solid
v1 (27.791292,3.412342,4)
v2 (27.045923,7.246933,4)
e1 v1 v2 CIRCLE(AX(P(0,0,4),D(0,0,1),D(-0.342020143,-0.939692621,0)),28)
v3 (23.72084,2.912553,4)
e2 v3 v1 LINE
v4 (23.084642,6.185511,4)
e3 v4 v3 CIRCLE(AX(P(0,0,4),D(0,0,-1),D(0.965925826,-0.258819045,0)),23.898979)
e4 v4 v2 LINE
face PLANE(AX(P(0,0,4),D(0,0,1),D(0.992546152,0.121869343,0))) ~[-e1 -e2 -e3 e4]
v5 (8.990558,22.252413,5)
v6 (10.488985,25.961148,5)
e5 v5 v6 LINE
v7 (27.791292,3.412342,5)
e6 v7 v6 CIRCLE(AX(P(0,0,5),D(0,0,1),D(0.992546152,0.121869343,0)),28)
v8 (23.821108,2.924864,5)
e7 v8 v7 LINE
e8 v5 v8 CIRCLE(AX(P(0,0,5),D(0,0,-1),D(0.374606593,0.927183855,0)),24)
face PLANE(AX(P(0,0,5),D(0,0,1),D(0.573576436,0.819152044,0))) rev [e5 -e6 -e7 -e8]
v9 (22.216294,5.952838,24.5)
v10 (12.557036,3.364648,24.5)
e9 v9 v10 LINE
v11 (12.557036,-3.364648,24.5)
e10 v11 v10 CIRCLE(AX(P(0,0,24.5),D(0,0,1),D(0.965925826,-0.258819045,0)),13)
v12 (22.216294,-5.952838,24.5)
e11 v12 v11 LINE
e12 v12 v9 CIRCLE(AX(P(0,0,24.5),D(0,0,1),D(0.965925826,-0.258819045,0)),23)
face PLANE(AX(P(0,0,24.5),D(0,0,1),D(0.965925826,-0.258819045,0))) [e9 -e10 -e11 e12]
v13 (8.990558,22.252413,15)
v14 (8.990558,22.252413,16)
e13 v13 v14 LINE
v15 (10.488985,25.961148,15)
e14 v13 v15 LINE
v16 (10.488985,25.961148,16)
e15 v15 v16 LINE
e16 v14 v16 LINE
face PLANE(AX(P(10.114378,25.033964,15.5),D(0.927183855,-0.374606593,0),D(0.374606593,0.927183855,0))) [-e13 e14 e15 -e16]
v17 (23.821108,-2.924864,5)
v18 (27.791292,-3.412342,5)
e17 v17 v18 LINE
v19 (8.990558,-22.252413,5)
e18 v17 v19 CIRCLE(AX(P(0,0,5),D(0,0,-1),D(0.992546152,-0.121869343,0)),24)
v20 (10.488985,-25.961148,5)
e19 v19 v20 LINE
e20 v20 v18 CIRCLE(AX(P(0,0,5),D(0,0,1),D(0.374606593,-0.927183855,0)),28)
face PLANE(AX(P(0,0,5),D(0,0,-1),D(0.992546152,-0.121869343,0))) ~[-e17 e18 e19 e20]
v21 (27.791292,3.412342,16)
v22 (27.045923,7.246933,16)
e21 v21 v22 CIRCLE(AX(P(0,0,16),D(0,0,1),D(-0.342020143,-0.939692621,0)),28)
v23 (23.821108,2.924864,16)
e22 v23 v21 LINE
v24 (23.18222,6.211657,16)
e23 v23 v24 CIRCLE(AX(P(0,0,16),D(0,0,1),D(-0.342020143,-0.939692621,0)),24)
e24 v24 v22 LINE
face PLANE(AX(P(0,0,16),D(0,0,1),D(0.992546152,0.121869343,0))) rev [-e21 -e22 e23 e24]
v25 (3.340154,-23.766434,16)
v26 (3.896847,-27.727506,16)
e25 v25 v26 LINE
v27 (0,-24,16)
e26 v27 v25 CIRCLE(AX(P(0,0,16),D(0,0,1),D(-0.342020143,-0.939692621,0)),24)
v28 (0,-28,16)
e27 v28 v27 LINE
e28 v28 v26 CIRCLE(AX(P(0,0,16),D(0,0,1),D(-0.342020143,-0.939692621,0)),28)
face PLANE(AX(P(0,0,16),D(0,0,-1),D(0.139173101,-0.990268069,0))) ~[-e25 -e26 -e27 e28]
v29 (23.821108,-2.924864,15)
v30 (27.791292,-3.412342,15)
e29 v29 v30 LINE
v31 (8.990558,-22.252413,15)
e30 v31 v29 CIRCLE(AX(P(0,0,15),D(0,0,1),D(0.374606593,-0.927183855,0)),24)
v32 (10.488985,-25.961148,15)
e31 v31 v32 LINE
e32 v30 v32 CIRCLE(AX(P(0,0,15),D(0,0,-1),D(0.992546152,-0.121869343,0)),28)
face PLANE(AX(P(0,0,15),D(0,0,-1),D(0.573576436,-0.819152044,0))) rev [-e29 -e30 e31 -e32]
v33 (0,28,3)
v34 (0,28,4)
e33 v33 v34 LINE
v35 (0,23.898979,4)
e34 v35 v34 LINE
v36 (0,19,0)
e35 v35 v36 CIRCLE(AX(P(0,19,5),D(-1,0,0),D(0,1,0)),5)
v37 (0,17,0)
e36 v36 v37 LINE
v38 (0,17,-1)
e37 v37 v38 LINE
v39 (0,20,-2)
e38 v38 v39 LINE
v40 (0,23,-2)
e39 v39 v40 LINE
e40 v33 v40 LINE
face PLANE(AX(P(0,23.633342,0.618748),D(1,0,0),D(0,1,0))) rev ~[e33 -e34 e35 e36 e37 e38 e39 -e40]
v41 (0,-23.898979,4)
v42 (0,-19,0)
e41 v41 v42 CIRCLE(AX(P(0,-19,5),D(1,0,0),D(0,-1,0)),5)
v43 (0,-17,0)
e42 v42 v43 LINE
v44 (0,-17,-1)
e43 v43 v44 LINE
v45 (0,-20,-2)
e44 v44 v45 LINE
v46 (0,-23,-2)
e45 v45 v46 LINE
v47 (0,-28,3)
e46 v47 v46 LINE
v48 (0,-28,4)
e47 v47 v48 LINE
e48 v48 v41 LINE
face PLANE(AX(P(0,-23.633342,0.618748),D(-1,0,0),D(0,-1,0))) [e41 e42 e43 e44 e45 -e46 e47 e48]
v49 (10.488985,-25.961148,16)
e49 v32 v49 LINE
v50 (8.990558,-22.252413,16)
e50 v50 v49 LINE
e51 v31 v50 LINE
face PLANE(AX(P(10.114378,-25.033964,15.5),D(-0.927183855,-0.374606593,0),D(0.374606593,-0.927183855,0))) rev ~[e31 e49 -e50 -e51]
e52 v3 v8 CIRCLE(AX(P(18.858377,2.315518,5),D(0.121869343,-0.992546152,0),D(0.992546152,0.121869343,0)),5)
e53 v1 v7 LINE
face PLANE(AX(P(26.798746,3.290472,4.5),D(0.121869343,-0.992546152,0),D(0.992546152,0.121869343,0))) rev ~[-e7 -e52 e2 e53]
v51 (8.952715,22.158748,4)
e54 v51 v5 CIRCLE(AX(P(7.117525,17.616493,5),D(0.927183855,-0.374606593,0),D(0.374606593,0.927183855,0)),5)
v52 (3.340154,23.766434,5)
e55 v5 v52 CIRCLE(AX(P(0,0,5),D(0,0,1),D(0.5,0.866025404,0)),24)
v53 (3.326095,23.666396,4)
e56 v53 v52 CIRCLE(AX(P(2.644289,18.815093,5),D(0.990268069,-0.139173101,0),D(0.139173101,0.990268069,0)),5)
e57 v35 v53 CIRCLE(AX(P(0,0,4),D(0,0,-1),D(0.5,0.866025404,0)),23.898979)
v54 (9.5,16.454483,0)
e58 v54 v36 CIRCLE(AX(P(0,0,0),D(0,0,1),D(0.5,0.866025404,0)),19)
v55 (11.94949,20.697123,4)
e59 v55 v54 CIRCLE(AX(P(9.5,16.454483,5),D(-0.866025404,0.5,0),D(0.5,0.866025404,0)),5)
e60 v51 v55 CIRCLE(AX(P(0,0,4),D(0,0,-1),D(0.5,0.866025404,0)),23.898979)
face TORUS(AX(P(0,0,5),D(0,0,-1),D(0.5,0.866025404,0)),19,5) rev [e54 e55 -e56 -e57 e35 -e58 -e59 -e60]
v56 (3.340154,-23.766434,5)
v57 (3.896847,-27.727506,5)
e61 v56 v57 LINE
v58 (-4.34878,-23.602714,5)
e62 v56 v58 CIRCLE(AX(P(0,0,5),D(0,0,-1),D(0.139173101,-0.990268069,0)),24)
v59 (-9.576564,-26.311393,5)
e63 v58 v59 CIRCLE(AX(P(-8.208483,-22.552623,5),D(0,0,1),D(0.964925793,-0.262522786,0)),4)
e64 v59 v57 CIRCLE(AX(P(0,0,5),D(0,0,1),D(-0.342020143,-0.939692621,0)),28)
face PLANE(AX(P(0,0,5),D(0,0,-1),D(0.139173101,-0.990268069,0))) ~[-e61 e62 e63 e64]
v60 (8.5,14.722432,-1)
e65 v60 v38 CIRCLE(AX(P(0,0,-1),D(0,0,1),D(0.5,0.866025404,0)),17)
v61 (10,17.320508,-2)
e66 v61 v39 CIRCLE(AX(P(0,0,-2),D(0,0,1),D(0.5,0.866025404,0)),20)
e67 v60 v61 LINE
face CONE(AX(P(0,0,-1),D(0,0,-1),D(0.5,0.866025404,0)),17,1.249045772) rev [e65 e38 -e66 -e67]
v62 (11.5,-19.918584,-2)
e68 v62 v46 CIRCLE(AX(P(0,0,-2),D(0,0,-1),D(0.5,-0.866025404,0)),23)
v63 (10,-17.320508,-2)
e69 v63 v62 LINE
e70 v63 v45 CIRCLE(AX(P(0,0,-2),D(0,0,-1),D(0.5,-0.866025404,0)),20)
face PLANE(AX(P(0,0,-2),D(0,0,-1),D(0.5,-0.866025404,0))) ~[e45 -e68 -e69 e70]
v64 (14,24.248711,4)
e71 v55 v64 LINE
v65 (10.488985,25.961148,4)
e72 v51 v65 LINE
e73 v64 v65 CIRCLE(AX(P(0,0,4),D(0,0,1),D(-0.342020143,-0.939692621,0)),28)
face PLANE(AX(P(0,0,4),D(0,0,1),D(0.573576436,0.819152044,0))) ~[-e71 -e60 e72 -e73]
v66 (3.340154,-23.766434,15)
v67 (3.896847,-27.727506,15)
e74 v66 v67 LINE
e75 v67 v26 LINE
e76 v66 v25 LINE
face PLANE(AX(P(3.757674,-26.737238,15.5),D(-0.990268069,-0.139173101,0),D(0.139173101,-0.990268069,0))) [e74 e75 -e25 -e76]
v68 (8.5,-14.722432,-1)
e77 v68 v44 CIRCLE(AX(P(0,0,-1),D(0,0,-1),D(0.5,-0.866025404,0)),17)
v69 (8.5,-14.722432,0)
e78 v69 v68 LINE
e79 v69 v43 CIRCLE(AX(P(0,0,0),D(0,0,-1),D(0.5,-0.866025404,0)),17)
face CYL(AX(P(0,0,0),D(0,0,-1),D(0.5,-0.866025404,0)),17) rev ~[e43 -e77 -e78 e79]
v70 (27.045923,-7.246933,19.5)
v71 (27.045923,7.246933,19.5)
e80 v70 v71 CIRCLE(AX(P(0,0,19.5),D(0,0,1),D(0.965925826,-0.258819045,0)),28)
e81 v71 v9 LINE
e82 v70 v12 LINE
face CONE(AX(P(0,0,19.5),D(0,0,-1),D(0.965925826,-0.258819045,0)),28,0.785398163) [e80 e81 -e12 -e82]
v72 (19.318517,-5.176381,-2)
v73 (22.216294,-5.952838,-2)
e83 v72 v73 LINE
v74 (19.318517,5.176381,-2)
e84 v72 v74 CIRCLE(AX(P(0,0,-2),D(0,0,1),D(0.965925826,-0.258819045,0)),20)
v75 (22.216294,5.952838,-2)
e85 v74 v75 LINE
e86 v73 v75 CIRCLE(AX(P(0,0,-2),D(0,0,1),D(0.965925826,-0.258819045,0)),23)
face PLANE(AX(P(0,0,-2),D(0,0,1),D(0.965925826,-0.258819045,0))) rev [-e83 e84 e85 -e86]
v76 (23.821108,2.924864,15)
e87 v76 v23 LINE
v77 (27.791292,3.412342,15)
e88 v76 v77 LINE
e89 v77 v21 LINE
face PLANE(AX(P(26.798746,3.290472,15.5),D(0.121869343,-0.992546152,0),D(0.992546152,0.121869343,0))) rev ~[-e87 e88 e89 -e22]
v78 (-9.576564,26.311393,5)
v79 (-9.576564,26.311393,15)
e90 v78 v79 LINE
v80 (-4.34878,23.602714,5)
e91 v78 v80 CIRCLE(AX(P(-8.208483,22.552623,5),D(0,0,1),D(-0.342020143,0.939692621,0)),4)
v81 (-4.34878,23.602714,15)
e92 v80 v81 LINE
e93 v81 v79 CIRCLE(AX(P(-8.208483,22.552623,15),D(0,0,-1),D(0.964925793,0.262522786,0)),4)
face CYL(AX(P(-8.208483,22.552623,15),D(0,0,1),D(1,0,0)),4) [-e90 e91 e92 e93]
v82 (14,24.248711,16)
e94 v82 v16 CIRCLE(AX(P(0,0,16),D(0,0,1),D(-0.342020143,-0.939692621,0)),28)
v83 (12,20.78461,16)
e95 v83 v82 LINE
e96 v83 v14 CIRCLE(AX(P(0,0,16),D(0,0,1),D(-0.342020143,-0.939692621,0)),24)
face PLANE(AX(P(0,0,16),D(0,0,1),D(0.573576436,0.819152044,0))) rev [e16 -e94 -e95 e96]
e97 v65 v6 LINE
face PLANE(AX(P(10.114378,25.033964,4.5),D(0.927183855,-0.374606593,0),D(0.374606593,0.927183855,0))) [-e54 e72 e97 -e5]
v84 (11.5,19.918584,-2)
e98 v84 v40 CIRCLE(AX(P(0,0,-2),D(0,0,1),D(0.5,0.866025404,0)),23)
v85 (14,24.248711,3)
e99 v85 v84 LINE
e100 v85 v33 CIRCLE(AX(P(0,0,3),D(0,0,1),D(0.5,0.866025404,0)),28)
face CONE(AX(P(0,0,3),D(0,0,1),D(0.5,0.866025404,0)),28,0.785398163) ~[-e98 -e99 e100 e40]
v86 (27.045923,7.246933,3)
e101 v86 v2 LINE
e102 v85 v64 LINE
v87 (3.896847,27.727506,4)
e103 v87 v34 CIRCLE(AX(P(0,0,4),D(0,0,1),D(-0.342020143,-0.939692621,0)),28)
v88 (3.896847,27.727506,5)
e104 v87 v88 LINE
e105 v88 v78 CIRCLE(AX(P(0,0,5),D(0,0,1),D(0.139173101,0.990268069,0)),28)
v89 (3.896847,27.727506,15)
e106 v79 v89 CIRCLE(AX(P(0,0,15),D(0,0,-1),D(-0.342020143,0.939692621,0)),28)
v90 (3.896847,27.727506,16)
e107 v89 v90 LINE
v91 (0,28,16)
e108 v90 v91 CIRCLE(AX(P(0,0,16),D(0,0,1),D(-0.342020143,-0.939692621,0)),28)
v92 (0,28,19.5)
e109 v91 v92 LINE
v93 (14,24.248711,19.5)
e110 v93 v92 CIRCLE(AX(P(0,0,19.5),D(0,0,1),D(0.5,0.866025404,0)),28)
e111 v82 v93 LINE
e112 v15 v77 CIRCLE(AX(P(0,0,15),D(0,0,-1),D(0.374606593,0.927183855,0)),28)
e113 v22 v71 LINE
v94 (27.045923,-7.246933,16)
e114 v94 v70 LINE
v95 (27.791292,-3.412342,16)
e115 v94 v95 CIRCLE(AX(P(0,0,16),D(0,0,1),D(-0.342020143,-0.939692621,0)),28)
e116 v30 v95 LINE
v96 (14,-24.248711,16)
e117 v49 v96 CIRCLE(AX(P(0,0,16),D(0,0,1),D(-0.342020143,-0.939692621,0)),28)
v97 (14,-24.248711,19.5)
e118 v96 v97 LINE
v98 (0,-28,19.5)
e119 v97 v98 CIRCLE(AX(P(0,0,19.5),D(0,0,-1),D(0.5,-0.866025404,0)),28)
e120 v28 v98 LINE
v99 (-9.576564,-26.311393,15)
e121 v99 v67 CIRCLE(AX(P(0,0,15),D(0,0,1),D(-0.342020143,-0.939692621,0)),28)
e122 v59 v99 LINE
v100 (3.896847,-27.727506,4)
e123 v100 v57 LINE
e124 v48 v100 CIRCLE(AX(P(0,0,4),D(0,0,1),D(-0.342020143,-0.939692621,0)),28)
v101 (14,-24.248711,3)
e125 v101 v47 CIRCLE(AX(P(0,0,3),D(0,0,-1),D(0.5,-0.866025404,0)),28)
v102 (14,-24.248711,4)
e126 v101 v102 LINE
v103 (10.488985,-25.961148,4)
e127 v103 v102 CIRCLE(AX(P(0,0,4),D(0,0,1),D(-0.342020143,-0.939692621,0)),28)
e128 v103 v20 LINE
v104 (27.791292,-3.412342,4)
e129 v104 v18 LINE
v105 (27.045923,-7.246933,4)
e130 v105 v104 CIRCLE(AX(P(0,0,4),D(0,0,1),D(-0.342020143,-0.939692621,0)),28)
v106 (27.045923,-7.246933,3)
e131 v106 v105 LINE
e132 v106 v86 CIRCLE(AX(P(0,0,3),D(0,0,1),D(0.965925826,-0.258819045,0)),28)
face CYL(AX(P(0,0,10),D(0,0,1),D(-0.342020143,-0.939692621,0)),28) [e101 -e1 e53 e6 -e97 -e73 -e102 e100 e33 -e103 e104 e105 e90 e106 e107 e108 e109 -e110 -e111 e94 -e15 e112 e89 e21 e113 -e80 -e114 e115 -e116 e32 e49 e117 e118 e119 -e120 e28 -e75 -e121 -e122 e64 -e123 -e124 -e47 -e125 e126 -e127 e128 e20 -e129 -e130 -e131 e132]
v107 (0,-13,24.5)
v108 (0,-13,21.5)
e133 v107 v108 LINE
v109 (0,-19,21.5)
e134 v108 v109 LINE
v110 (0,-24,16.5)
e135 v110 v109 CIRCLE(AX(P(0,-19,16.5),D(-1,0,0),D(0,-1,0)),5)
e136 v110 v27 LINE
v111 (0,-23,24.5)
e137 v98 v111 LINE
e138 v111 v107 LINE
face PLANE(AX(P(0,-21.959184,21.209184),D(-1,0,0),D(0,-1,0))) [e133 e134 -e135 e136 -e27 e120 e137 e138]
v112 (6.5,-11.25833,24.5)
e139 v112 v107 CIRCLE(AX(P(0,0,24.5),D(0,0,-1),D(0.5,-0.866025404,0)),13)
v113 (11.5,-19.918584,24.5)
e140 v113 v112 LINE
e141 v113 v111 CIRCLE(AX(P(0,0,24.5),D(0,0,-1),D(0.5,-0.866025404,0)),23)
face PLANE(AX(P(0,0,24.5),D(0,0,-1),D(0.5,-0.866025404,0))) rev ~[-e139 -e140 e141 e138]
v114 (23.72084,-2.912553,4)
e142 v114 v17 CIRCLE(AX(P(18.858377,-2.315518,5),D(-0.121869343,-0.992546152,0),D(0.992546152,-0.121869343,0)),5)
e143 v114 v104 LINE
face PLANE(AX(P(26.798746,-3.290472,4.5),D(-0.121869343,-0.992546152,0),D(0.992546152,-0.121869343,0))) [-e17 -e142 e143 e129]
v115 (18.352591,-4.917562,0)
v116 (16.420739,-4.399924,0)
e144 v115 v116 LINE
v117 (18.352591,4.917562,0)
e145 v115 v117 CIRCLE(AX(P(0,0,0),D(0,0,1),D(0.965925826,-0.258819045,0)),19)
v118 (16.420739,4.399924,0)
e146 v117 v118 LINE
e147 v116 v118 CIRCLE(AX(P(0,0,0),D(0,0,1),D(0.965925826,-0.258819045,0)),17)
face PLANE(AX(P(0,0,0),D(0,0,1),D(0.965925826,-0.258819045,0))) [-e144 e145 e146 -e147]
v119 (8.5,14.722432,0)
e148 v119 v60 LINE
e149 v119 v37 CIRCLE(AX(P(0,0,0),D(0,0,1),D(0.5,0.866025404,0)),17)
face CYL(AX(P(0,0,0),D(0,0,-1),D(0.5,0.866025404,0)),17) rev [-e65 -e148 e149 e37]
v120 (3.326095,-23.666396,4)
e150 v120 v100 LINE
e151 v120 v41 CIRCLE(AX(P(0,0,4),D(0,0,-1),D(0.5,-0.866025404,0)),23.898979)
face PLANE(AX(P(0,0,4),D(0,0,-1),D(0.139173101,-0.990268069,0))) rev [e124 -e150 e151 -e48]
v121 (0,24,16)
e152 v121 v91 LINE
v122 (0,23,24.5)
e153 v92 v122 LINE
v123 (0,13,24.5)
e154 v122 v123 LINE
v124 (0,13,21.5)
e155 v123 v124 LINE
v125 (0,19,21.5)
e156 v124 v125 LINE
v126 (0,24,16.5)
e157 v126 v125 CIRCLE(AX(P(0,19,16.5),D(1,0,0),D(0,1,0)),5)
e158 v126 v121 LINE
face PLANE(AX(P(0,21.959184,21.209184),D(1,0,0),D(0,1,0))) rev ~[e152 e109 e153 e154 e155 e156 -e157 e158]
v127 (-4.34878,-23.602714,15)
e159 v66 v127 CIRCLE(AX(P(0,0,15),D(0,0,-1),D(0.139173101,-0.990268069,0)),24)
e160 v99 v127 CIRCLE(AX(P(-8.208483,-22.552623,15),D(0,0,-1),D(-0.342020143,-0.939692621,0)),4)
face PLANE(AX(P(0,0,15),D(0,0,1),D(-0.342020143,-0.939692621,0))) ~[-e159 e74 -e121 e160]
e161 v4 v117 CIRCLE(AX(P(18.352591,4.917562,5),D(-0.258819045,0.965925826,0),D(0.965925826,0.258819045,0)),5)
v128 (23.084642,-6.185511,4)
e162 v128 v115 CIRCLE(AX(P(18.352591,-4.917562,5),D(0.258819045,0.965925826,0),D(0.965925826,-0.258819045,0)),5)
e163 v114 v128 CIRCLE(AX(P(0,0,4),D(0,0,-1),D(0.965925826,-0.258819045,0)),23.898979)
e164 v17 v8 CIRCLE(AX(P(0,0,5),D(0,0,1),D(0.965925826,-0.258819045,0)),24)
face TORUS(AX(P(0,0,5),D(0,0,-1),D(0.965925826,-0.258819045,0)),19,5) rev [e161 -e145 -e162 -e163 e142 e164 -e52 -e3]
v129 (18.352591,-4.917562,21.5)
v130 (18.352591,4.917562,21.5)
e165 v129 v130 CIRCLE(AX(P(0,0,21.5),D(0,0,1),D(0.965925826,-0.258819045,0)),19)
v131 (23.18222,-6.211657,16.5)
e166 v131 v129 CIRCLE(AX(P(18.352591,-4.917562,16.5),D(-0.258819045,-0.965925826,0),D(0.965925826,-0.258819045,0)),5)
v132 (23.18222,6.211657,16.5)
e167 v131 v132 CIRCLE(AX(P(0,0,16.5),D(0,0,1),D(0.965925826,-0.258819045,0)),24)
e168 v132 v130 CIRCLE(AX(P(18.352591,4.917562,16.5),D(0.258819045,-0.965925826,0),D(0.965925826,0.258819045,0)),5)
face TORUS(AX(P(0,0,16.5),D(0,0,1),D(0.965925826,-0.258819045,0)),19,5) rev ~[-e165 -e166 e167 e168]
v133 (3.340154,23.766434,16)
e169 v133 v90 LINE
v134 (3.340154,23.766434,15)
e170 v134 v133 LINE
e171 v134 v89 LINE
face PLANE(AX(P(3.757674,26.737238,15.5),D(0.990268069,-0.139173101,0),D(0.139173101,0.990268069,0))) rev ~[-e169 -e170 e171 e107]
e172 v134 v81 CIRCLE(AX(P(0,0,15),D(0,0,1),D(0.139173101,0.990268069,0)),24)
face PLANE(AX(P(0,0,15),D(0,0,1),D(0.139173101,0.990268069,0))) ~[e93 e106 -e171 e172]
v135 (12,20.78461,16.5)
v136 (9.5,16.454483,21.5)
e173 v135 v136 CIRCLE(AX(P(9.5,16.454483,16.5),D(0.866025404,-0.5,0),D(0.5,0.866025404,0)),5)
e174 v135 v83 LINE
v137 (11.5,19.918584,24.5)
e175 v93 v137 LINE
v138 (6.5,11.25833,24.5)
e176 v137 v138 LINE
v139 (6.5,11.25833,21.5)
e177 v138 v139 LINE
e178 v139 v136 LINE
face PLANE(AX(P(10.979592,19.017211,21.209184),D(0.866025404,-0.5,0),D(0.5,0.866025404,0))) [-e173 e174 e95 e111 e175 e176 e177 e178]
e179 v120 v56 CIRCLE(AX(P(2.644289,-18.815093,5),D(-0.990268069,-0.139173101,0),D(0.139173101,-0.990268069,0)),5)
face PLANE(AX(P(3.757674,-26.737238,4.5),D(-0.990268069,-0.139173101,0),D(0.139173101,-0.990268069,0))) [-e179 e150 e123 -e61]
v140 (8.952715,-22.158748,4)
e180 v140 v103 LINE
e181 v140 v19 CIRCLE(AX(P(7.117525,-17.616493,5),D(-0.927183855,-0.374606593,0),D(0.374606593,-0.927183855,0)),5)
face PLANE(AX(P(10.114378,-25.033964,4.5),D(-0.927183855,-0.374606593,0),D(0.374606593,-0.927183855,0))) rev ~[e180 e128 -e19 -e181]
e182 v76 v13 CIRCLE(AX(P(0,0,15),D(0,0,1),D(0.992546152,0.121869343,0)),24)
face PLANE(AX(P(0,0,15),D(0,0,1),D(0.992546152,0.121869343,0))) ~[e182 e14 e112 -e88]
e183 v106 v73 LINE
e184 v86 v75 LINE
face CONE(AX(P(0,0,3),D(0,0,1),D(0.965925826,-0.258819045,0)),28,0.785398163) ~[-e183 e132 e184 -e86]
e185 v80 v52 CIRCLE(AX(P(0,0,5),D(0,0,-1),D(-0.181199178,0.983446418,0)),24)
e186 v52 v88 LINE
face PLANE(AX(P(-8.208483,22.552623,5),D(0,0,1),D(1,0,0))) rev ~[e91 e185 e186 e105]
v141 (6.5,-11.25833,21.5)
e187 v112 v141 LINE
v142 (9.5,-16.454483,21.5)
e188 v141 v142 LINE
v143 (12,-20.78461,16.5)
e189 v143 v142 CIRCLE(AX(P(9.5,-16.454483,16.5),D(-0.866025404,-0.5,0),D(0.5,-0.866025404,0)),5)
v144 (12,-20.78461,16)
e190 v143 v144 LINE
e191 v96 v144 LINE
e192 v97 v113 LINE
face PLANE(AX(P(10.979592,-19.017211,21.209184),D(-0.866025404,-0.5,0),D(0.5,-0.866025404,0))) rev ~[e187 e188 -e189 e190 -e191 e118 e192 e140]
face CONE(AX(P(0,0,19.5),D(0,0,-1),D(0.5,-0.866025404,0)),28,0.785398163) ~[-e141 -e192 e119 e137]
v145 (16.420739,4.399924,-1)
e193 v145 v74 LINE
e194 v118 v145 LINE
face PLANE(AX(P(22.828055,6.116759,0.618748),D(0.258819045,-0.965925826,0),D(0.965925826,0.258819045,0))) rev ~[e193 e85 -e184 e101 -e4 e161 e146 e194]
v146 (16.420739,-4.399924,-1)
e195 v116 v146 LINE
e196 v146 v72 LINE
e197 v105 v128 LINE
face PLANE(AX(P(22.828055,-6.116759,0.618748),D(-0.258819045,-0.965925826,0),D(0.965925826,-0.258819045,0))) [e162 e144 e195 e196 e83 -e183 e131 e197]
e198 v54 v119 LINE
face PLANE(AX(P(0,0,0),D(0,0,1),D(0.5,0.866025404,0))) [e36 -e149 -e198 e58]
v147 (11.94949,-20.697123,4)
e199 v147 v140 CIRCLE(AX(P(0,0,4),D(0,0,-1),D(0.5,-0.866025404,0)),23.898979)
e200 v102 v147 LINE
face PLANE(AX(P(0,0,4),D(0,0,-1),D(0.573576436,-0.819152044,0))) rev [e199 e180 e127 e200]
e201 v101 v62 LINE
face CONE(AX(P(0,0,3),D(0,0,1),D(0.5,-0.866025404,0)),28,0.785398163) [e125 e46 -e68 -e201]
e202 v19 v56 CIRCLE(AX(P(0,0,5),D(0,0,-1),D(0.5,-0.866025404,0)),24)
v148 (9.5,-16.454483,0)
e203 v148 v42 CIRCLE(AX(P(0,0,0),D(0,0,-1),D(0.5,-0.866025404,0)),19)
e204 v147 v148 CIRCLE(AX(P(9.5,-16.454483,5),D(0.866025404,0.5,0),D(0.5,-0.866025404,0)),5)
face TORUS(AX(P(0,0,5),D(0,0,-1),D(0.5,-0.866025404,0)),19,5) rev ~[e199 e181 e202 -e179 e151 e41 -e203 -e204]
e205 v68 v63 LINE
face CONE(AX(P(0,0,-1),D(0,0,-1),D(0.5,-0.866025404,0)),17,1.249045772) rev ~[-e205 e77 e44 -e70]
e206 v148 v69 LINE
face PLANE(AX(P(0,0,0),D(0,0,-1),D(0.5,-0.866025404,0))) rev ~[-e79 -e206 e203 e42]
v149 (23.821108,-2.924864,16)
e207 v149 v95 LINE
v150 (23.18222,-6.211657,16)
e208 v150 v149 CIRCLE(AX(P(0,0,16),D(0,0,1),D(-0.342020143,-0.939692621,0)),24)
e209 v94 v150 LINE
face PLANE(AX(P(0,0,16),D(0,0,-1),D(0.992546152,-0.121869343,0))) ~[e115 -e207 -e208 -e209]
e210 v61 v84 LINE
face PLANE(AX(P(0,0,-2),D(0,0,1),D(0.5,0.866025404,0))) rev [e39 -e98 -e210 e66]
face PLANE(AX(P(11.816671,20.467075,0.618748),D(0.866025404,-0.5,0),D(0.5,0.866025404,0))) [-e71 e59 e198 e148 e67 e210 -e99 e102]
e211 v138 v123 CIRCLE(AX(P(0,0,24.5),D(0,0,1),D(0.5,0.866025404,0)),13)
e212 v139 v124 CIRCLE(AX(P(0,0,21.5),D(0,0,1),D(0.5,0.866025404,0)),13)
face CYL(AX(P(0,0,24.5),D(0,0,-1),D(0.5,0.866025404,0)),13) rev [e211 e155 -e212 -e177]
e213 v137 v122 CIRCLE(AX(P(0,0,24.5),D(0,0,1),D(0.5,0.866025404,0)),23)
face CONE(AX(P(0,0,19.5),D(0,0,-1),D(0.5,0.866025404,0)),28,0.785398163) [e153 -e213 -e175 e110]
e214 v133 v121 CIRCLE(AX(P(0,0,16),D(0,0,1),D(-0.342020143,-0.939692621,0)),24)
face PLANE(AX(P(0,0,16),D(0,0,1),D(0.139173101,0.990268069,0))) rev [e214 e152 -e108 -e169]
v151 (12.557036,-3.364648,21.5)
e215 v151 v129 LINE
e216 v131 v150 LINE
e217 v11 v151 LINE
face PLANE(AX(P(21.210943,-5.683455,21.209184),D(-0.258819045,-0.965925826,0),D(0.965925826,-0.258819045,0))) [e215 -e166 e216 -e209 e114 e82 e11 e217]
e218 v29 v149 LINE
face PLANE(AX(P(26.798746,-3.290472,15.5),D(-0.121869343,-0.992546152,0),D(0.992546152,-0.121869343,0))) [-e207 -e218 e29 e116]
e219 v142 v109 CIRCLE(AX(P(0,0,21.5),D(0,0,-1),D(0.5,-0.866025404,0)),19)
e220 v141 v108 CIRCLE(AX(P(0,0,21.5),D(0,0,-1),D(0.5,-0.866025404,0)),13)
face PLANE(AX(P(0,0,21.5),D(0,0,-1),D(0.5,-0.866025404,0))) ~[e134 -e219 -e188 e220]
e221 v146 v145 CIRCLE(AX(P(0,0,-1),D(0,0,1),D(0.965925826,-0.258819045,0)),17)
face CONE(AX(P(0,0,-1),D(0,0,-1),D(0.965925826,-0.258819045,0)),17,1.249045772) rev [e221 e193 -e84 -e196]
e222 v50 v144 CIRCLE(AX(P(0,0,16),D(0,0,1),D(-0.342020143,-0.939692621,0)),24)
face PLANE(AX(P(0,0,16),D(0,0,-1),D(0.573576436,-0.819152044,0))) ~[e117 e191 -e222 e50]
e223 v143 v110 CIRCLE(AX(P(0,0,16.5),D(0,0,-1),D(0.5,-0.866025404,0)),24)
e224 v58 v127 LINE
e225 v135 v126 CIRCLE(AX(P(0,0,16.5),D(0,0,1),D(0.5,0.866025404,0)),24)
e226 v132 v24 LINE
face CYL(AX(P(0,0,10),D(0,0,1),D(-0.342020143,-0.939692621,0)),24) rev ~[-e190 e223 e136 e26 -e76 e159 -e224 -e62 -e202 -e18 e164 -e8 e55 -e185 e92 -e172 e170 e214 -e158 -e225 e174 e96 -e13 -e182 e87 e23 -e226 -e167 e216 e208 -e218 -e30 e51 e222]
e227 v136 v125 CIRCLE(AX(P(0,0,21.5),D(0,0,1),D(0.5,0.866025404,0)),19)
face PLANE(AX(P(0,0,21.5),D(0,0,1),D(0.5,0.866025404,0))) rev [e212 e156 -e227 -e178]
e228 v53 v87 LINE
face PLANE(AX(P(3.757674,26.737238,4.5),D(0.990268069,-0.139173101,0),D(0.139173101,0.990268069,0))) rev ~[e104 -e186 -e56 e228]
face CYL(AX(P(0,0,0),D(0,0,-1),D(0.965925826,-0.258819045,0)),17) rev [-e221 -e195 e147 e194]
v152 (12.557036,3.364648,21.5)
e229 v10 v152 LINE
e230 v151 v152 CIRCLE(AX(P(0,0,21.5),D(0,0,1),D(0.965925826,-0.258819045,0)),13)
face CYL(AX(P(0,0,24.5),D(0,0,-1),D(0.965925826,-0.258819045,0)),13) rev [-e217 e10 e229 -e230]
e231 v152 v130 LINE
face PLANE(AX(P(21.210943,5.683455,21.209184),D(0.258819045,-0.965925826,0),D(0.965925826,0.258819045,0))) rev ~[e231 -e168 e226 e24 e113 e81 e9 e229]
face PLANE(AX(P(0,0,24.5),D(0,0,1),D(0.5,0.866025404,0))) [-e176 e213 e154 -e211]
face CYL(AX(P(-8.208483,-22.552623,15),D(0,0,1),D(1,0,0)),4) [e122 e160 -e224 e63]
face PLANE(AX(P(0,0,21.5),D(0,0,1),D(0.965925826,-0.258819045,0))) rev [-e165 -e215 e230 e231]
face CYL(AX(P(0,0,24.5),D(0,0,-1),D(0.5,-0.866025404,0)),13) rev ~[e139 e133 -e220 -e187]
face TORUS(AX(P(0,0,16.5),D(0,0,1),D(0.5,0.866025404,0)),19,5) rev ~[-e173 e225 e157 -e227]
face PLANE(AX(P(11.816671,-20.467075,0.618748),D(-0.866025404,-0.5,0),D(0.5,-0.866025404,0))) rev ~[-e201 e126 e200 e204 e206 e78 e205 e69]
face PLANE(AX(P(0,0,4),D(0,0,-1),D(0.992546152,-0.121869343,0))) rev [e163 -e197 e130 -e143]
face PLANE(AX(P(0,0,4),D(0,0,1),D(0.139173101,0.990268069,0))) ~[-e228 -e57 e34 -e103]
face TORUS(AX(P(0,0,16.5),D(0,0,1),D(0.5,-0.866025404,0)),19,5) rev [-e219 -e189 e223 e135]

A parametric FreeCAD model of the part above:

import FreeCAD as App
import Part
import Sketcher


def edges_at(feature, points):
    """Names of the edges that pass closest to the given points."""
    edges = feature.Shape.Edges
    near = lambda p: min(range(len(edges)), key=lambda i: edges[i].distToShape(Part.Vertex(*p))[0])
    return sorted({f"Edge{near(p) + 1}" for p in points})

doc = App.newDocument("Part")
body = doc.addObject("PartDesign::Body", "Body")

# Sketch on an angled plane
sketch1 = body.newObject("Sketcher::SketchObject", "Sketch")
sketch1.Placement = App.Placement(App.Vector(0, 0, 0), App.Rotation(App.Vector(-0.342020143, -0.939692621, 0), App.Vector(0, 0, 1), App.Vector(-0.939692621, 0.342020143, 0), "ZXY"))
sketch1.addGeometry([
    Part.LineSegment(App.Vector(24, 15, 0), App.Vector(24, 5, 0)),
    Part.LineSegment(App.Vector(24, 5, 0), App.Vector(28, 5, 0)),
    Part.LineSegment(App.Vector(28, 5, 0), App.Vector(28, 15, 0)),
    Part.LineSegment(App.Vector(28, 15, 0), App.Vector(24, 15, 0)),
], False)
sketch1.addConstraint([
    Sketcher.Constraint("Coincident", 0, 2, 1, 1),
    Sketcher.Constraint("Coincident", 1, 2, 2, 1),
    Sketcher.Constraint("Coincident", 2, 2, 3, 1),
    Sketcher.Constraint("Coincident", 3, 2, 0, 1),
    Sketcher.Constraint("Vertical", 0),
    Sketcher.Constraint("Horizontal", 1),
    Sketcher.Constraint("Vertical", 2),
    Sketcher.Constraint("Horizontal", 3),
    Sketcher.Constraint("DistanceX", 1, 1, 1, 2, 4.0),
    Sketcher.Constraint("DistanceY", 0, 2, 0, 1, 10.0),
    Sketcher.Constraint("DistanceX", -1, 1, 0, 2, 24.0),
    Sketcher.Constraint("DistanceY", -1, 1, 0, 2, 5.0),
])
revolution = body.newObject("PartDesign::Revolution", "Revolution")
revolution.Profile = sketch1
revolution.ReferenceAxis = (sketch1, ["V_Axis"])
revolution.Angle = 220

# Sketch on an angled plane
sketch2 = body.newObject("Sketcher::SketchObject", "Sketch001")
sketch2.Placement = App.Placement(App.Vector(0, 0, 0), App.Rotation(App.Vector(0.5, -0.866025404, 0), App.Vector(0, 0, 1), App.Vector(-0.866025404, -0.5, 0), "ZXY"))
sketch2.addGeometry([
    Part.LineSegment(App.Vector(24, 21.5, 0), App.Vector(24, 15, 0)),  # 0
    Part.LineSegment(App.Vector(24, 15, 0), App.Vector(28, 15, 0)),  # 1
    Part.LineSegment(App.Vector(28, 15, 0), App.Vector(28, 24.5, 0)),  # 2
    Part.LineSegment(App.Vector(28, 24.5, 0), App.Vector(13, 24.5, 0)),  # 3
    Part.LineSegment(App.Vector(13, 24.5, 0), App.Vector(13, 21.5, 0)),  # 4
    Part.LineSegment(App.Vector(13, 21.5, 0), App.Vector(24, 21.5, 0)),  # 5
    Part.LineSegment(App.Vector(28, 5, 0), App.Vector(24, 5, 0)),  # 6
    Part.LineSegment(App.Vector(24, 5, 0), App.Vector(24, 0, 0)),  # 7
    Part.LineSegment(App.Vector(24, 0, 0), App.Vector(17, 0, 0)),  # 8
    Part.LineSegment(App.Vector(17, 0, 0), App.Vector(17, -1, 0)),  # 9
    Part.LineSegment(App.Vector(17, -1, 0), App.Vector(20, -2, 0)),  # 10
    Part.LineSegment(App.Vector(20, -2, 0), App.Vector(28, -2, 0)),  # 11
    Part.LineSegment(App.Vector(28, -2, 0), App.Vector(28, 5, 0)),  # 12
], False)
sketch2.addConstraint([
    Sketcher.Constraint("Coincident", 0, 2, 1, 1),
    Sketcher.Constraint("Coincident", 1, 2, 2, 1),
    Sketcher.Constraint("Coincident", 2, 2, 3, 1),
    Sketcher.Constraint("Coincident", 3, 2, 4, 1),
    Sketcher.Constraint("Coincident", 4, 2, 5, 1),
    Sketcher.Constraint("Coincident", 5, 2, 0, 1),
    Sketcher.Constraint("Coincident", 6, 2, 7, 1),
    Sketcher.Constraint("Coincident", 7, 2, 8, 1),
    Sketcher.Constraint("Coincident", 8, 2, 9, 1),
    Sketcher.Constraint("Coincident", 9, 2, 10, 1),
    Sketcher.Constraint("Coincident", 10, 2, 11, 1),
    Sketcher.Constraint("Coincident", 11, 2, 12, 1),
    Sketcher.Constraint("Coincident", 12, 2, 6, 1),
    Sketcher.Constraint("Vertical", 0),
    Sketcher.Constraint("Horizontal", 1),
    Sketcher.Constraint("Vertical", 2),
    Sketcher.Constraint("Horizontal", 3),
    Sketcher.Constraint("Vertical", 4),
    Sketcher.Constraint("Horizontal", 5),
    Sketcher.Constraint("Horizontal", 6),
    Sketcher.Constraint("Vertical", 7),
    Sketcher.Constraint("Horizontal", 8),
    Sketcher.Constraint("Vertical", 9),
    Sketcher.Constraint("Horizontal", 11),
    Sketcher.Constraint("Vertical", 12),
    Sketcher.Constraint("PointOnObject", 7, 2, -1),
    Sketcher.Constraint("Vertical", 5, 2, 6, 2),
    Sketcher.Constraint("Vertical", 2, 2, 11, 2),
    Sketcher.Constraint("Equal", 8, 12),
    Sketcher.Constraint("DistanceX", 1, 1, 1, 2, 4.0),
    Sketcher.Constraint("DistanceX", 3, 2, 3, 1, 15.0),
    Sketcher.Constraint("DistanceX", 8, 2, 8, 1, 7.0),
    Sketcher.Constraint("DistanceX", 11, 1, 11, 2, 8.0),
    Sketcher.Constraint("DistanceY", 4, 2, 4, 1, 3.0),
    Sketcher.Constraint("DistanceY", 7, 2, 7, 1, 5.0),
    Sketcher.Constraint("DistanceY", 9, 2, 9, 1, 1.0),
    Sketcher.Constraint("DistanceY", 0, 2, 0, 1, 6.5),
    Sketcher.Constraint("DistanceX", -1, 1, 0, 2, 24.0),
    Sketcher.Constraint("DistanceY", -1, 1, 0, 2, 15.0),
])
revolution2 = body.newObject("PartDesign::Revolution", "Revolution001")
revolution2.Profile = sketch2
revolution2.ReferenceAxis = (sketch2, ["V_Axis"])
revolution2.Angle = 30
revolution2.Reversed = True

# Sketch on an angled plane
sketch3 = body.newObject("Sketcher::SketchObject", "Sketch002")
sketch3.Placement = App.Placement(App.Vector(0, 0, 0), App.Rotation(App.Vector(0.5, 0.866025404, 0), App.Vector(0, 0, 1), App.Vector(0.866025404, -0.5, 0), "ZXY"))
sketch3.addGeometry([
    Part.LineSegment(App.Vector(24, 21.5, 0), App.Vector(24, 15, 0)),  # 0
    Part.LineSegment(App.Vector(24, 15, 0), App.Vector(28, 15, 0)),  # 1
    Part.LineSegment(App.Vector(28, 15, 0), App.Vector(28, 24.5, 0)),  # 2
    Part.LineSegment(App.Vector(28, 24.5, 0), App.Vector(13, 24.5, 0)),  # 3
    Part.LineSegment(App.Vector(13, 24.5, 0), App.Vector(13, 21.5, 0)),  # 4
    Part.LineSegment(App.Vector(13, 21.5, 0), App.Vector(24, 21.5, 0)),  # 5
    Part.LineSegment(App.Vector(28, 5, 0), App.Vector(24, 5, 0)),  # 6
    Part.LineSegment(App.Vector(24, 5, 0), App.Vector(24, 0, 0)),  # 7
    Part.LineSegment(App.Vector(24, 0, 0), App.Vector(17, 0, 0)),  # 8
    Part.LineSegment(App.Vector(17, 0, 0), App.Vector(17, -1, 0)),  # 9
    Part.LineSegment(App.Vector(17, -1, 0), App.Vector(20, -2, 0)),  # 10
    Part.LineSegment(App.Vector(20, -2, 0), App.Vector(28, -2, 0)),  # 11
    Part.LineSegment(App.Vector(28, -2, 0), App.Vector(28, 5, 0)),  # 12
], False)
sketch3.addConstraint([
    Sketcher.Constraint("Coincident", 0, 2, 1, 1),
    Sketcher.Constraint("Coincident", 1, 2, 2, 1),
    Sketcher.Constraint("Coincident", 2, 2, 3, 1),
    Sketcher.Constraint("Coincident", 3, 2, 4, 1),
    Sketcher.Constraint("Coincident", 4, 2, 5, 1),
    Sketcher.Constraint("Coincident", 5, 2, 0, 1),
    Sketcher.Constraint("Coincident", 6, 2, 7, 1),
    Sketcher.Constraint("Coincident", 7, 2, 8, 1),
    Sketcher.Constraint("Coincident", 8, 2, 9, 1),
    Sketcher.Constraint("Coincident", 9, 2, 10, 1),
    Sketcher.Constraint("Coincident", 10, 2, 11, 1),
    Sketcher.Constraint("Coincident", 11, 2, 12, 1),
    Sketcher.Constraint("Coincident", 12, 2, 6, 1),
    Sketcher.Constraint("Vertical", 0),
    Sketcher.Constraint("Horizontal", 1),
    Sketcher.Constraint("Vertical", 2),
    Sketcher.Constraint("Horizontal", 3),
    Sketcher.Constraint("Vertical", 4),
    Sketcher.Constraint("Horizontal", 5),
    Sketcher.Constraint("Horizontal", 6),
    Sketcher.Constraint("Vertical", 7),
    Sketcher.Constraint("Horizontal", 8),
    Sketcher.Constraint("Vertical", 9),
    Sketcher.Constraint("Horizontal", 11),
    Sketcher.Constraint("Vertical", 12),
    Sketcher.Constraint("PointOnObject", 7, 2, -1),
    Sketcher.Constraint("Vertical", 5, 2, 6, 2),
    Sketcher.Constraint("Vertical", 2, 2, 11, 2),
    Sketcher.Constraint("Equal", 8, 12),
    Sketcher.Constraint("DistanceX", 1, 1, 1, 2, 4.0),
    Sketcher.Constraint("DistanceX", 3, 2, 3, 1, 15.0),
    Sketcher.Constraint("DistanceX", 8, 2, 8, 1, 7.0),
    Sketcher.Constraint("DistanceX", 11, 1, 11, 2, 8.0),
    Sketcher.Constraint("DistanceY", 4, 2, 4, 1, 3.0),
    Sketcher.Constraint("DistanceY", 7, 2, 7, 1, 5.0),
    Sketcher.Constraint("DistanceY", 9, 2, 9, 1, 1.0),
    Sketcher.Constraint("DistanceY", 0, 2, 0, 1, 6.5),
    Sketcher.Constraint("DistanceX", -1, 1, 0, 2, 24.0),
    Sketcher.Constraint("DistanceY", -1, 1, 0, 2, 15.0),
])
revolution3 = body.newObject("PartDesign::Revolution", "Revolution002")
revolution3.Profile = sketch3
revolution3.ReferenceAxis = (sketch3, ["V_Axis"])
revolution3.Angle = 30

# Sketch on an angled plane
sketch4 = body.newObject("Sketcher::SketchObject", "Sketch003")
sketch4.Placement = App.Placement(App.Vector(0, 0, 0), App.Rotation(App.Vector(0.965925826, -0.258819045, 0), App.Vector(0, 0, 0.999999999), App.Vector(-0.258819045, -0.965925826, 0), "ZXY"))
sketch4.addGeometry([
    Part.LineSegment(App.Vector(24, 21.5, 0), App.Vector(24, 15, 0)),  # 0
    Part.LineSegment(App.Vector(24, 15, 0), App.Vector(28, 15, 0)),  # 1
    Part.LineSegment(App.Vector(28, 15, 0), App.Vector(28, 24.5, 0)),  # 2
    Part.LineSegment(App.Vector(28, 24.5, 0), App.Vector(13, 24.5, 0)),  # 3
    Part.LineSegment(App.Vector(13, 24.5, 0), App.Vector(13, 21.5, 0)),  # 4
    Part.LineSegment(App.Vector(13, 21.5, 0), App.Vector(24, 21.5, 0)),  # 5
    Part.LineSegment(App.Vector(28, 5, 0), App.Vector(24, 5, 0)),  # 6
    Part.LineSegment(App.Vector(24, 5, 0), App.Vector(24, 0, 0)),  # 7
    Part.LineSegment(App.Vector(24, 0, 0), App.Vector(17, 0, 0)),  # 8
    Part.LineSegment(App.Vector(17, 0, 0), App.Vector(17, -1, 0)),  # 9
    Part.LineSegment(App.Vector(17, -1, 0), App.Vector(20, -2, 0)),  # 10
    Part.LineSegment(App.Vector(20, -2, 0), App.Vector(28, -2, 0)),  # 11
    Part.LineSegment(App.Vector(28, -2, 0), App.Vector(28, 5, 0)),  # 12
], False)
sketch4.addConstraint([
    Sketcher.Constraint("Coincident", 0, 2, 1, 1),
    Sketcher.Constraint("Coincident", 1, 2, 2, 1),
    Sketcher.Constraint("Coincident", 2, 2, 3, 1),
    Sketcher.Constraint("Coincident", 3, 2, 4, 1),
    Sketcher.Constraint("Coincident", 4, 2, 5, 1),
    Sketcher.Constraint("Coincident", 5, 2, 0, 1),
    Sketcher.Constraint("Coincident", 6, 2, 7, 1),
    Sketcher.Constraint("Coincident", 7, 2, 8, 1),
    Sketcher.Constraint("Coincident", 8, 2, 9, 1),
    Sketcher.Constraint("Coincident", 9, 2, 10, 1),
    Sketcher.Constraint("Coincident", 10, 2, 11, 1),
    Sketcher.Constraint("Coincident", 11, 2, 12, 1),
    Sketcher.Constraint("Coincident", 12, 2, 6, 1),
    Sketcher.Constraint("Vertical", 0),
    Sketcher.Constraint("Horizontal", 1),
    Sketcher.Constraint("Vertical", 2),
    Sketcher.Constraint("Horizontal", 3),
    Sketcher.Constraint("Vertical", 4),
    Sketcher.Constraint("Horizontal", 5),
    Sketcher.Constraint("Horizontal", 6),
    Sketcher.Constraint("Vertical", 7),
    Sketcher.Constraint("Horizontal", 8),
    Sketcher.Constraint("Vertical", 9),
    Sketcher.Constraint("Horizontal", 11),
    Sketcher.Constraint("Vertical", 12),
    Sketcher.Constraint("PointOnObject", 7, 2, -1),
    Sketcher.Constraint("Vertical", 5, 2, 6, 2),
    Sketcher.Constraint("Vertical", 2, 2, 11, 2),
    Sketcher.Constraint("Equal", 8, 12),
    Sketcher.Constraint("DistanceX", 1, 1, 1, 2, 4.0),
    Sketcher.Constraint("DistanceX", 3, 2, 3, 1, 15.0),
    Sketcher.Constraint("DistanceX", 8, 2, 8, 1, 7.0),
    Sketcher.Constraint("DistanceX", 11, 1, 11, 2, 8.0),
    Sketcher.Constraint("DistanceY", 4, 2, 4, 1, 3.0),
    Sketcher.Constraint("DistanceY", 7, 2, 7, 1, 5.0),
    Sketcher.Constraint("DistanceY", 9, 2, 9, 1, 1.0),
    Sketcher.Constraint("DistanceY", 0, 2, 0, 1, 6.5),
    Sketcher.Constraint("DistanceX", -1, 1, 0, 2, 24.0),
    Sketcher.Constraint("DistanceY", -1, 1, 0, 2, 15.0),
])
revolution4 = body.newObject("PartDesign::Revolution", "Revolution003")
revolution4.Profile = sketch4
revolution4.ReferenceAxis = (sketch4, ["V_Axis"])
revolution4.Angle = 30

# Sketch on XY plane
sketch5 = body.newObject("Sketcher::SketchObject", "Sketch004")
sketch5.AttachmentSupport = (doc.getObject("XY_Plane"), [""])
sketch5.MapMode = "FlatFace"
sketch5.AttachmentOffset = App.Placement(App.Vector(0, 0, 15), App.Rotation())
sketch5.addGeometry([
    Part.Circle(App.Vector(-8.2, 22.6, 0), App.Vector(0, 0, 1), 4),
    Part.Circle(App.Vector(-8.2, -22.6, 0), App.Vector(0, 0, 1), 4),
], False)
sketch5.addConstraint([
    Sketcher.Constraint("Equal", 0, 1),
    Sketcher.Constraint("Symmetric", 0, 3, 1, 3, -1),
    Sketcher.Constraint("Diameter", 0, 8.0),
    Sketcher.Constraint("DistanceX", 0, 3, -1, 1, 8.208483),
    Sketcher.Constraint("DistanceY", -1, 1, 0, 3, 22.552623),
])
pad1 = body.newObject("PartDesign::Pad", "Pad")
pad1.Profile = sketch5
pad1.Length = 10
pad1.Reversed = True
doc.recompute()

fillet = body.newObject("PartDesign::Fillet", "Fillet")
fillet.Base = (pad1, edges_at(pad1, [
    (24, 0, 21.5),
    (6.212, 23.182, 21.5),
    (6.212, -23.182, 21.5),
    (6.212, -23.182, 0),
    (6.212, 23.182, 0),
    (24, 0, 0),
]))
fillet.Radius = 5
doc.recompute()

chamfer = body.newObject("PartDesign::Chamfer", "Chamfer")
chamfer.Base = (fillet, edges_at(fillet, [
    (7.247, 27.046, 24.5),
    (28, 0, 24.5),
    (7.247, -27.046, 24.5),
    (7.247, -27.046, -2),
    (7.247, 27.046, -2),
    (28, 0, -2),
]))
chamfer.Size = 5

# Sketch on an angled plane
sketch6 = body.newObject("Sketcher::SketchObject", "Sketch005")
sketch6.Placement = App.Placement(App.Vector(0, 0, 0), App.Rotation(App.Vector(0.992546152, -0.121869343, 0), App.Vector(0, 0, 1.000000001), App.Vector(-0.121869343, -0.992546152, 0), "ZXY"))
sketch6.addGeometry([
    Part.LineSegment(App.Vector(22, 16, 0), App.Vector(22, 15, 0)),  # 0
    Part.LineSegment(App.Vector(22, 15, 0), App.Vector(32, 15, 0)),  # 1
    Part.LineSegment(App.Vector(32, 15, 0), App.Vector(32, 16, 0)),  # 2
    Part.LineSegment(App.Vector(32, 16, 0), App.Vector(22, 16, 0)),  # 3
    Part.LineSegment(App.Vector(22, 5, 0), App.Vector(22, 4, 0)),  # 4
    Part.LineSegment(App.Vector(22, 4, 0), App.Vector(32, 4, 0)),  # 5
    Part.LineSegment(App.Vector(32, 4, 0), App.Vector(32, 5, 0)),  # 6
    Part.LineSegment(App.Vector(32, 5, 0), App.Vector(22, 5, 0)),  # 7
], False)
sketch6.addConstraint([
    Sketcher.Constraint("Coincident", 0, 2, 1, 1),
    Sketcher.Constraint("Coincident", 1, 2, 2, 1),
    Sketcher.Constraint("Coincident", 2, 2, 3, 1),
    Sketcher.Constraint("Coincident", 3, 2, 0, 1),
    Sketcher.Constraint("Coincident", 4, 2, 5, 1),
    Sketcher.Constraint("Coincident", 5, 2, 6, 1),
    Sketcher.Constraint("Coincident", 6, 2, 7, 1),
    Sketcher.Constraint("Coincident", 7, 2, 4, 1),
    Sketcher.Constraint("Vertical", 0),
    Sketcher.Constraint("Horizontal", 1),
    Sketcher.Constraint("Vertical", 2),
    Sketcher.Constraint("Horizontal", 3),
    Sketcher.Constraint("Vertical", 4),
    Sketcher.Constraint("Horizontal", 5),
    Sketcher.Constraint("Vertical", 6),
    Sketcher.Constraint("Horizontal", 7),
    Sketcher.Constraint("Vertical", 3, 2, 4, 2),
    Sketcher.Constraint("Vertical", 2, 2, 5, 2),
    Sketcher.Constraint("Equal", 2, 4),
    Sketcher.Constraint("DistanceX", 1, 1, 1, 2, 10.0),
    Sketcher.Constraint("DistanceY", 0, 2, 0, 1, 1.0),
    Sketcher.Constraint("DistanceX", -1, 1, 0, 2, 22.0),
    Sketcher.Constraint("DistanceY", -1, 1, 0, 2, 15.0),
    Sketcher.Constraint("DistanceY", -1, 1, 4, 2, 4.0),
])
groove = body.newObject("PartDesign::Groove", "Groove")
groove.Profile = sketch6
groove.ReferenceAxis = (sketch6, ["V_Axis"])
groove.Angle = 13
groove.Reversed = True

# Sketch on an angled plane
sketch7 = body.newObject("Sketcher::SketchObject", "Sketch006")
sketch7.Placement = App.Placement(App.Vector(0, 0, 0), App.Rotation(App.Vector(0.992546152, 0.121869343, 0), App.Vector(0, 0, 1.000000001), App.Vector(0.121869343, -0.992546152, 0), "ZXY"))
sketch7.addGeometry([
    Part.LineSegment(App.Vector(22, 16, 0), App.Vector(22, 15, 0)),  # 0
    Part.LineSegment(App.Vector(22, 15, 0), App.Vector(32, 15, 0)),  # 1
    Part.LineSegment(App.Vector(32, 15, 0), App.Vector(32, 16, 0)),  # 2
    Part.LineSegment(App.Vector(32, 16, 0), App.Vector(22, 16, 0)),  # 3
    Part.LineSegment(App.Vector(22, 5, 0), App.Vector(22, 4, 0)),  # 4
    Part.LineSegment(App.Vector(22, 4, 0), App.Vector(32, 4, 0)),  # 5
    Part.LineSegment(App.Vector(32, 4, 0), App.Vector(32, 5, 0)),  # 6
    Part.LineSegment(App.Vector(32, 5, 0), App.Vector(22, 5, 0)),  # 7
], False)
sketch7.addConstraint([
    Sketcher.Constraint("Coincident", 0, 2, 1, 1),
    Sketcher.Constraint("Coincident", 1, 2, 2, 1),
    Sketcher.Constraint("Coincident", 2, 2, 3, 1),
    Sketcher.Constraint("Coincident", 3, 2, 0, 1),
    Sketcher.Constraint("Coincident", 4, 2, 5, 1),
    Sketcher.Constraint("Coincident", 5, 2, 6, 1),
    Sketcher.Constraint("Coincident", 6, 2, 7, 1),
    Sketcher.Constraint("Coincident", 7, 2, 4, 1),
    Sketcher.Constraint("Vertical", 0),
    Sketcher.Constraint("Horizontal", 1),
    Sketcher.Constraint("Vertical", 2),
    Sketcher.Constraint("Horizontal", 3),
    Sketcher.Constraint("Vertical", 4),
    Sketcher.Constraint("Horizontal", 5),
    Sketcher.Constraint("Vertical", 6),
    Sketcher.Constraint("Horizontal", 7),
    Sketcher.Constraint("Vertical", 3, 2, 4, 2),
    Sketcher.Constraint("Vertical", 2, 2, 5, 2),
    Sketcher.Constraint("Equal", 2, 4),
    Sketcher.Constraint("DistanceX", 1, 1, 1, 2, 10.0),
    Sketcher.Constraint("DistanceY", 0, 2, 0, 1, 1.0),
    Sketcher.Constraint("DistanceX", -1, 1, 0, 2, 22.0),
    Sketcher.Constraint("DistanceY", -1, 1, 0, 2, 15.0),
    Sketcher.Constraint("DistanceY", -1, 1, 4, 2, 4.0),
])
groove2 = body.newObject("PartDesign::Groove", "Groove001")
groove2.Profile = sketch7
groove2.ReferenceAxis = (sketch7, ["V_Axis"])
groove2.Angle = 13

# Sketch on an angled plane
sketch8 = body.newObject("Sketcher::SketchObject", "Sketch007")
sketch8.Placement = App.Placement(App.Vector(0, 0, 0), App.Rotation(App.Vector(0.139173101, 0.990268069, 0), App.Vector(0, 0, 1.000000001), App.Vector(0.990268069, -0.139173101, 0), "ZXY"))
sketch8.addGeometry([
    Part.LineSegment(App.Vector(22, 16, 0), App.Vector(22, 15, 0)),  # 0
    Part.LineSegment(App.Vector(22, 15, 0), App.Vector(32, 15, 0)),  # 1
    Part.LineSegment(App.Vector(32, 15, 0), App.Vector(32, 16, 0)),  # 2
    Part.LineSegment(App.Vector(32, 16, 0), App.Vector(22, 16, 0)),  # 3
    Part.LineSegment(App.Vector(22, 5, 0), App.Vector(22, 4, 0)),  # 4
    Part.LineSegment(App.Vector(22, 4, 0), App.Vector(32, 4, 0)),  # 5
    Part.LineSegment(App.Vector(32, 4, 0), App.Vector(32, 5, 0)),  # 6
    Part.LineSegment(App.Vector(32, 5, 0), App.Vector(22, 5, 0)),  # 7
], False)
sketch8.addConstraint([
    Sketcher.Constraint("Coincident", 0, 2, 1, 1),
    Sketcher.Constraint("Coincident", 1, 2, 2, 1),
    Sketcher.Constraint("Coincident", 2, 2, 3, 1),
    Sketcher.Constraint("Coincident", 3, 2, 0, 1),
    Sketcher.Constraint("Coincident", 4, 2, 5, 1),
    Sketcher.Constraint("Coincident", 5, 2, 6, 1),
    Sketcher.Constraint("Coincident", 6, 2, 7, 1),
    Sketcher.Constraint("Coincident", 7, 2, 4, 1),
    Sketcher.Constraint("Vertical", 0),
    Sketcher.Constraint("Horizontal", 1),
    Sketcher.Constraint("Vertical", 2),
    Sketcher.Constraint("Horizontal", 3),
    Sketcher.Constraint("Vertical", 4),
    Sketcher.Constraint("Horizontal", 5),
    Sketcher.Constraint("Vertical", 6),
    Sketcher.Constraint("Horizontal", 7),
    Sketcher.Constraint("Vertical", 3, 2, 4, 2),
    Sketcher.Constraint("Vertical", 2, 2, 5, 2),
    Sketcher.Constraint("Equal", 2, 4),
    Sketcher.Constraint("DistanceX", 1, 1, 1, 2, 10.0),
    Sketcher.Constraint("DistanceY", 0, 2, 0, 1, 1.0),
    Sketcher.Constraint("DistanceX", -1, 1, 0, 2, 22.0),
    Sketcher.Constraint("DistanceY", -1, 1, 0, 2, 15.0),
    Sketcher.Constraint("DistanceY", -1, 1, 4, 2, 4.0),
])
groove3 = body.newObject("PartDesign::Groove", "Groove002")
groove3.Profile = sketch8
groove3.ReferenceAxis = (sketch8, ["V_Axis"])
groove3.Angle = 13

# Sketch on an angled plane
sketch9 = body.newObject("Sketcher::SketchObject", "Sketch008")
sketch9.Placement = App.Placement(App.Vector(0, 0, 0), App.Rotation(App.Vector(0.139173101, -0.990268069, 0), App.Vector(0, 0, 1.000000001), App.Vector(-0.990268069, -0.139173101, 0), "ZXY"))
sketch9.addGeometry([
    Part.LineSegment(App.Vector(22, 16, 0), App.Vector(22, 15, 0)),  # 0
    Part.LineSegment(App.Vector(22, 15, 0), App.Vector(32, 15, 0)),  # 1
    Part.LineSegment(App.Vector(32, 15, 0), App.Vector(32, 16, 0)),  # 2
    Part.LineSegment(App.Vector(32, 16, 0), App.Vector(22, 16, 0)),  # 3
    Part.LineSegment(App.Vector(22, 5, 0), App.Vector(22, 4, 0)),  # 4
    Part.LineSegment(App.Vector(22, 4, 0), App.Vector(32, 4, 0)),  # 5
    Part.LineSegment(App.Vector(32, 4, 0), App.Vector(32, 5, 0)),  # 6
    Part.LineSegment(App.Vector(32, 5, 0), App.Vector(22, 5, 0)),  # 7
], False)
sketch9.addConstraint([
    Sketcher.Constraint("Coincident", 0, 2, 1, 1),
    Sketcher.Constraint("Coincident", 1, 2, 2, 1),
    Sketcher.Constraint("Coincident", 2, 2, 3, 1),
    Sketcher.Constraint("Coincident", 3, 2, 0, 1),
    Sketcher.Constraint("Coincident", 4, 2, 5, 1),
    Sketcher.Constraint("Coincident", 5, 2, 6, 1),
    Sketcher.Constraint("Coincident", 6, 2, 7, 1),
    Sketcher.Constraint("Coincident", 7, 2, 4, 1),
    Sketcher.Constraint("Vertical", 0),
    Sketcher.Constraint("Horizontal", 1),
    Sketcher.Constraint("Vertical", 2),
    Sketcher.Constraint("Horizontal", 3),
    Sketcher.Constraint("Vertical", 4),
    Sketcher.Constraint("Horizontal", 5),
    Sketcher.Constraint("Vertical", 6),
    Sketcher.Constraint("Horizontal", 7),
    Sketcher.Constraint("Vertical", 3, 2, 4, 2),
    Sketcher.Constraint("Vertical", 2, 2, 5, 2),
    Sketcher.Constraint("Equal", 2, 4),
    Sketcher.Constraint("DistanceX", 1, 1, 1, 2, 10.0),
    Sketcher.Constraint("DistanceY", 0, 2, 0, 1, 1.0),
    Sketcher.Constraint("DistanceX", -1, 1, 0, 2, 22.0),
    Sketcher.Constraint("DistanceY", -1, 1, 0, 2, 15.0),
    Sketcher.Constraint("DistanceY", -1, 1, 4, 2, 4.0),
])
groove4 = body.newObject("PartDesign::Groove", "Groove003")
groove4.Profile = sketch9
groove4.ReferenceAxis = (sketch9, ["V_Axis"])
groove4.Angle = 13
groove4.Reversed = True

# Sketch on an angled plane
sketch10 = body.newObject("Sketcher::SketchObject", "Sketch009")
sketch10.Placement = App.Placement(App.Vector(0, 0, 0), App.Rotation(App.Vector(0.573576436, -0.819152044, 0), App.Vector(0, 0, 0.999999999), App.Vector(-0.819152044, -0.573576436, 0), "ZXY"))
sketch10.addGeometry([
    Part.LineSegment(App.Vector(22, 16, 0), App.Vector(22, 15, 0)),  # 0
    Part.LineSegment(App.Vector(22, 15, 0), App.Vector(32, 15, 0)),  # 1
    Part.LineSegment(App.Vector(32, 15, 0), App.Vector(32, 16, 0)),  # 2
    Part.LineSegment(App.Vector(32, 16, 0), App.Vector(22, 16, 0)),  # 3
    Part.LineSegment(App.Vector(22, 5, 0), App.Vector(22, 4, 0)),  # 4
    Part.LineSegment(App.Vector(22, 4, 0), App.Vector(32, 4, 0)),  # 5
    Part.LineSegment(App.Vector(32, 4, 0), App.Vector(32, 5, 0)),  # 6
    Part.LineSegment(App.Vector(32, 5, 0), App.Vector(22, 5, 0)),  # 7
], False)
sketch10.addConstraint([
    Sketcher.Constraint("Coincident", 0, 2, 1, 1),
    Sketcher.Constraint("Coincident", 1, 2, 2, 1),
    Sketcher.Constraint("Coincident", 2, 2, 3, 1),
    Sketcher.Constraint("Coincident", 3, 2, 0, 1),
    Sketcher.Constraint("Coincident", 4, 2, 5, 1),
    Sketcher.Constraint("Coincident", 5, 2, 6, 1),
    Sketcher.Constraint("Coincident", 6, 2, 7, 1),
    Sketcher.Constraint("Coincident", 7, 2, 4, 1),
    Sketcher.Constraint("Vertical", 0),
    Sketcher.Constraint("Horizontal", 1),
    Sketcher.Constraint("Vertical", 2),
    Sketcher.Constraint("Horizontal", 3),
    Sketcher.Constraint("Vertical", 4),
    Sketcher.Constraint("Horizontal", 5),
    Sketcher.Constraint("Vertical", 6),
    Sketcher.Constraint("Horizontal", 7),
    Sketcher.Constraint("Vertical", 3, 2, 4, 2),
    Sketcher.Constraint("Vertical", 2, 2, 5, 2),
    Sketcher.Constraint("Equal", 2, 4),
    Sketcher.Constraint("DistanceX", 1, 1, 1, 2, 10.0),
    Sketcher.Constraint("DistanceY", 0, 2, 0, 1, 1.0),
    Sketcher.Constraint("DistanceX", -1, 1, 0, 2, 22.0),
    Sketcher.Constraint("DistanceY", -1, 1, 0, 2, 15.0),
    Sketcher.Constraint("DistanceY", -1, 1, 4, 2, 4.0),
])
groove5 = body.newObject("PartDesign::Groove", "Groove004")
groove5.Profile = sketch10
groove5.ReferenceAxis = (sketch10, ["V_Axis"])
groove5.Angle = 13
groove5.Reversed = True

# Sketch on an angled plane
sketch11 = body.newObject("Sketcher::SketchObject", "Sketch010")
sketch11.Placement = App.Placement(App.Vector(0, 0, 0), App.Rotation(App.Vector(0.573576436, 0.819152044, 0), App.Vector(0, 0, 0.999999999), App.Vector(0.819152044, -0.573576436, 0), "ZXY"))
sketch11.addGeometry([
    Part.LineSegment(App.Vector(22, 16, 0), App.Vector(22, 15, 0)),  # 0
    Part.LineSegment(App.Vector(22, 15, 0), App.Vector(32, 15, 0)),  # 1
    Part.LineSegment(App.Vector(32, 15, 0), App.Vector(32, 16, 0)),  # 2
    Part.LineSegment(App.Vector(32, 16, 0), App.Vector(22, 16, 0)),  # 3
    Part.LineSegment(App.Vector(22, 5, 0), App.Vector(22, 4, 0)),  # 4
    Part.LineSegment(App.Vector(22, 4, 0), App.Vector(32, 4, 0)),  # 5
    Part.LineSegment(App.Vector(32, 4, 0), App.Vector(32, 5, 0)),  # 6
    Part.LineSegment(App.Vector(32, 5, 0), App.Vector(22, 5, 0)),  # 7
], False)
sketch11.addConstraint([
    Sketcher.Constraint("Coincident", 0, 2, 1, 1),
    Sketcher.Constraint("Coincident", 1, 2, 2, 1),
    Sketcher.Constraint("Coincident", 2, 2, 3, 1),
    Sketcher.Constraint("Coincident", 3, 2, 0, 1),
    Sketcher.Constraint("Coincident", 4, 2, 5, 1),
    Sketcher.Constraint("Coincident", 5, 2, 6, 1),
    Sketcher.Constraint("Coincident", 6, 2, 7, 1),
    Sketcher.Constraint("Coincident", 7, 2, 4, 1),
    Sketcher.Constraint("Vertical", 0),
    Sketcher.Constraint("Horizontal", 1),
    Sketcher.Constraint("Vertical", 2),
    Sketcher.Constraint("Horizontal", 3),
    Sketcher.Constraint("Vertical", 4),
    Sketcher.Constraint("Horizontal", 5),
    Sketcher.Constraint("Vertical", 6),
    Sketcher.Constraint("Horizontal", 7),
    Sketcher.Constraint("Vertical", 3, 2, 4, 2),
    Sketcher.Constraint("Vertical", 2, 2, 5, 2),
    Sketcher.Constraint("Equal", 2, 4),
    Sketcher.Constraint("DistanceX", 1, 1, 1, 2, 10.0),
    Sketcher.Constraint("DistanceY", 0, 2, 0, 1, 1.0),
    Sketcher.Constraint("DistanceX", -1, 1, 0, 2, 22.0),
    Sketcher.Constraint("DistanceY", -1, 1, 0, 2, 15.0),
    Sketcher.Constraint("DistanceY", -1, 1, 4, 2, 4.0),
])
groove6 = body.newObject("PartDesign::Groove", "Groove005")
groove6.Profile = sketch11
groove6.ReferenceAxis = (sketch11, ["V_Axis"])
groove6.Angle = 13

doc.recompute()
